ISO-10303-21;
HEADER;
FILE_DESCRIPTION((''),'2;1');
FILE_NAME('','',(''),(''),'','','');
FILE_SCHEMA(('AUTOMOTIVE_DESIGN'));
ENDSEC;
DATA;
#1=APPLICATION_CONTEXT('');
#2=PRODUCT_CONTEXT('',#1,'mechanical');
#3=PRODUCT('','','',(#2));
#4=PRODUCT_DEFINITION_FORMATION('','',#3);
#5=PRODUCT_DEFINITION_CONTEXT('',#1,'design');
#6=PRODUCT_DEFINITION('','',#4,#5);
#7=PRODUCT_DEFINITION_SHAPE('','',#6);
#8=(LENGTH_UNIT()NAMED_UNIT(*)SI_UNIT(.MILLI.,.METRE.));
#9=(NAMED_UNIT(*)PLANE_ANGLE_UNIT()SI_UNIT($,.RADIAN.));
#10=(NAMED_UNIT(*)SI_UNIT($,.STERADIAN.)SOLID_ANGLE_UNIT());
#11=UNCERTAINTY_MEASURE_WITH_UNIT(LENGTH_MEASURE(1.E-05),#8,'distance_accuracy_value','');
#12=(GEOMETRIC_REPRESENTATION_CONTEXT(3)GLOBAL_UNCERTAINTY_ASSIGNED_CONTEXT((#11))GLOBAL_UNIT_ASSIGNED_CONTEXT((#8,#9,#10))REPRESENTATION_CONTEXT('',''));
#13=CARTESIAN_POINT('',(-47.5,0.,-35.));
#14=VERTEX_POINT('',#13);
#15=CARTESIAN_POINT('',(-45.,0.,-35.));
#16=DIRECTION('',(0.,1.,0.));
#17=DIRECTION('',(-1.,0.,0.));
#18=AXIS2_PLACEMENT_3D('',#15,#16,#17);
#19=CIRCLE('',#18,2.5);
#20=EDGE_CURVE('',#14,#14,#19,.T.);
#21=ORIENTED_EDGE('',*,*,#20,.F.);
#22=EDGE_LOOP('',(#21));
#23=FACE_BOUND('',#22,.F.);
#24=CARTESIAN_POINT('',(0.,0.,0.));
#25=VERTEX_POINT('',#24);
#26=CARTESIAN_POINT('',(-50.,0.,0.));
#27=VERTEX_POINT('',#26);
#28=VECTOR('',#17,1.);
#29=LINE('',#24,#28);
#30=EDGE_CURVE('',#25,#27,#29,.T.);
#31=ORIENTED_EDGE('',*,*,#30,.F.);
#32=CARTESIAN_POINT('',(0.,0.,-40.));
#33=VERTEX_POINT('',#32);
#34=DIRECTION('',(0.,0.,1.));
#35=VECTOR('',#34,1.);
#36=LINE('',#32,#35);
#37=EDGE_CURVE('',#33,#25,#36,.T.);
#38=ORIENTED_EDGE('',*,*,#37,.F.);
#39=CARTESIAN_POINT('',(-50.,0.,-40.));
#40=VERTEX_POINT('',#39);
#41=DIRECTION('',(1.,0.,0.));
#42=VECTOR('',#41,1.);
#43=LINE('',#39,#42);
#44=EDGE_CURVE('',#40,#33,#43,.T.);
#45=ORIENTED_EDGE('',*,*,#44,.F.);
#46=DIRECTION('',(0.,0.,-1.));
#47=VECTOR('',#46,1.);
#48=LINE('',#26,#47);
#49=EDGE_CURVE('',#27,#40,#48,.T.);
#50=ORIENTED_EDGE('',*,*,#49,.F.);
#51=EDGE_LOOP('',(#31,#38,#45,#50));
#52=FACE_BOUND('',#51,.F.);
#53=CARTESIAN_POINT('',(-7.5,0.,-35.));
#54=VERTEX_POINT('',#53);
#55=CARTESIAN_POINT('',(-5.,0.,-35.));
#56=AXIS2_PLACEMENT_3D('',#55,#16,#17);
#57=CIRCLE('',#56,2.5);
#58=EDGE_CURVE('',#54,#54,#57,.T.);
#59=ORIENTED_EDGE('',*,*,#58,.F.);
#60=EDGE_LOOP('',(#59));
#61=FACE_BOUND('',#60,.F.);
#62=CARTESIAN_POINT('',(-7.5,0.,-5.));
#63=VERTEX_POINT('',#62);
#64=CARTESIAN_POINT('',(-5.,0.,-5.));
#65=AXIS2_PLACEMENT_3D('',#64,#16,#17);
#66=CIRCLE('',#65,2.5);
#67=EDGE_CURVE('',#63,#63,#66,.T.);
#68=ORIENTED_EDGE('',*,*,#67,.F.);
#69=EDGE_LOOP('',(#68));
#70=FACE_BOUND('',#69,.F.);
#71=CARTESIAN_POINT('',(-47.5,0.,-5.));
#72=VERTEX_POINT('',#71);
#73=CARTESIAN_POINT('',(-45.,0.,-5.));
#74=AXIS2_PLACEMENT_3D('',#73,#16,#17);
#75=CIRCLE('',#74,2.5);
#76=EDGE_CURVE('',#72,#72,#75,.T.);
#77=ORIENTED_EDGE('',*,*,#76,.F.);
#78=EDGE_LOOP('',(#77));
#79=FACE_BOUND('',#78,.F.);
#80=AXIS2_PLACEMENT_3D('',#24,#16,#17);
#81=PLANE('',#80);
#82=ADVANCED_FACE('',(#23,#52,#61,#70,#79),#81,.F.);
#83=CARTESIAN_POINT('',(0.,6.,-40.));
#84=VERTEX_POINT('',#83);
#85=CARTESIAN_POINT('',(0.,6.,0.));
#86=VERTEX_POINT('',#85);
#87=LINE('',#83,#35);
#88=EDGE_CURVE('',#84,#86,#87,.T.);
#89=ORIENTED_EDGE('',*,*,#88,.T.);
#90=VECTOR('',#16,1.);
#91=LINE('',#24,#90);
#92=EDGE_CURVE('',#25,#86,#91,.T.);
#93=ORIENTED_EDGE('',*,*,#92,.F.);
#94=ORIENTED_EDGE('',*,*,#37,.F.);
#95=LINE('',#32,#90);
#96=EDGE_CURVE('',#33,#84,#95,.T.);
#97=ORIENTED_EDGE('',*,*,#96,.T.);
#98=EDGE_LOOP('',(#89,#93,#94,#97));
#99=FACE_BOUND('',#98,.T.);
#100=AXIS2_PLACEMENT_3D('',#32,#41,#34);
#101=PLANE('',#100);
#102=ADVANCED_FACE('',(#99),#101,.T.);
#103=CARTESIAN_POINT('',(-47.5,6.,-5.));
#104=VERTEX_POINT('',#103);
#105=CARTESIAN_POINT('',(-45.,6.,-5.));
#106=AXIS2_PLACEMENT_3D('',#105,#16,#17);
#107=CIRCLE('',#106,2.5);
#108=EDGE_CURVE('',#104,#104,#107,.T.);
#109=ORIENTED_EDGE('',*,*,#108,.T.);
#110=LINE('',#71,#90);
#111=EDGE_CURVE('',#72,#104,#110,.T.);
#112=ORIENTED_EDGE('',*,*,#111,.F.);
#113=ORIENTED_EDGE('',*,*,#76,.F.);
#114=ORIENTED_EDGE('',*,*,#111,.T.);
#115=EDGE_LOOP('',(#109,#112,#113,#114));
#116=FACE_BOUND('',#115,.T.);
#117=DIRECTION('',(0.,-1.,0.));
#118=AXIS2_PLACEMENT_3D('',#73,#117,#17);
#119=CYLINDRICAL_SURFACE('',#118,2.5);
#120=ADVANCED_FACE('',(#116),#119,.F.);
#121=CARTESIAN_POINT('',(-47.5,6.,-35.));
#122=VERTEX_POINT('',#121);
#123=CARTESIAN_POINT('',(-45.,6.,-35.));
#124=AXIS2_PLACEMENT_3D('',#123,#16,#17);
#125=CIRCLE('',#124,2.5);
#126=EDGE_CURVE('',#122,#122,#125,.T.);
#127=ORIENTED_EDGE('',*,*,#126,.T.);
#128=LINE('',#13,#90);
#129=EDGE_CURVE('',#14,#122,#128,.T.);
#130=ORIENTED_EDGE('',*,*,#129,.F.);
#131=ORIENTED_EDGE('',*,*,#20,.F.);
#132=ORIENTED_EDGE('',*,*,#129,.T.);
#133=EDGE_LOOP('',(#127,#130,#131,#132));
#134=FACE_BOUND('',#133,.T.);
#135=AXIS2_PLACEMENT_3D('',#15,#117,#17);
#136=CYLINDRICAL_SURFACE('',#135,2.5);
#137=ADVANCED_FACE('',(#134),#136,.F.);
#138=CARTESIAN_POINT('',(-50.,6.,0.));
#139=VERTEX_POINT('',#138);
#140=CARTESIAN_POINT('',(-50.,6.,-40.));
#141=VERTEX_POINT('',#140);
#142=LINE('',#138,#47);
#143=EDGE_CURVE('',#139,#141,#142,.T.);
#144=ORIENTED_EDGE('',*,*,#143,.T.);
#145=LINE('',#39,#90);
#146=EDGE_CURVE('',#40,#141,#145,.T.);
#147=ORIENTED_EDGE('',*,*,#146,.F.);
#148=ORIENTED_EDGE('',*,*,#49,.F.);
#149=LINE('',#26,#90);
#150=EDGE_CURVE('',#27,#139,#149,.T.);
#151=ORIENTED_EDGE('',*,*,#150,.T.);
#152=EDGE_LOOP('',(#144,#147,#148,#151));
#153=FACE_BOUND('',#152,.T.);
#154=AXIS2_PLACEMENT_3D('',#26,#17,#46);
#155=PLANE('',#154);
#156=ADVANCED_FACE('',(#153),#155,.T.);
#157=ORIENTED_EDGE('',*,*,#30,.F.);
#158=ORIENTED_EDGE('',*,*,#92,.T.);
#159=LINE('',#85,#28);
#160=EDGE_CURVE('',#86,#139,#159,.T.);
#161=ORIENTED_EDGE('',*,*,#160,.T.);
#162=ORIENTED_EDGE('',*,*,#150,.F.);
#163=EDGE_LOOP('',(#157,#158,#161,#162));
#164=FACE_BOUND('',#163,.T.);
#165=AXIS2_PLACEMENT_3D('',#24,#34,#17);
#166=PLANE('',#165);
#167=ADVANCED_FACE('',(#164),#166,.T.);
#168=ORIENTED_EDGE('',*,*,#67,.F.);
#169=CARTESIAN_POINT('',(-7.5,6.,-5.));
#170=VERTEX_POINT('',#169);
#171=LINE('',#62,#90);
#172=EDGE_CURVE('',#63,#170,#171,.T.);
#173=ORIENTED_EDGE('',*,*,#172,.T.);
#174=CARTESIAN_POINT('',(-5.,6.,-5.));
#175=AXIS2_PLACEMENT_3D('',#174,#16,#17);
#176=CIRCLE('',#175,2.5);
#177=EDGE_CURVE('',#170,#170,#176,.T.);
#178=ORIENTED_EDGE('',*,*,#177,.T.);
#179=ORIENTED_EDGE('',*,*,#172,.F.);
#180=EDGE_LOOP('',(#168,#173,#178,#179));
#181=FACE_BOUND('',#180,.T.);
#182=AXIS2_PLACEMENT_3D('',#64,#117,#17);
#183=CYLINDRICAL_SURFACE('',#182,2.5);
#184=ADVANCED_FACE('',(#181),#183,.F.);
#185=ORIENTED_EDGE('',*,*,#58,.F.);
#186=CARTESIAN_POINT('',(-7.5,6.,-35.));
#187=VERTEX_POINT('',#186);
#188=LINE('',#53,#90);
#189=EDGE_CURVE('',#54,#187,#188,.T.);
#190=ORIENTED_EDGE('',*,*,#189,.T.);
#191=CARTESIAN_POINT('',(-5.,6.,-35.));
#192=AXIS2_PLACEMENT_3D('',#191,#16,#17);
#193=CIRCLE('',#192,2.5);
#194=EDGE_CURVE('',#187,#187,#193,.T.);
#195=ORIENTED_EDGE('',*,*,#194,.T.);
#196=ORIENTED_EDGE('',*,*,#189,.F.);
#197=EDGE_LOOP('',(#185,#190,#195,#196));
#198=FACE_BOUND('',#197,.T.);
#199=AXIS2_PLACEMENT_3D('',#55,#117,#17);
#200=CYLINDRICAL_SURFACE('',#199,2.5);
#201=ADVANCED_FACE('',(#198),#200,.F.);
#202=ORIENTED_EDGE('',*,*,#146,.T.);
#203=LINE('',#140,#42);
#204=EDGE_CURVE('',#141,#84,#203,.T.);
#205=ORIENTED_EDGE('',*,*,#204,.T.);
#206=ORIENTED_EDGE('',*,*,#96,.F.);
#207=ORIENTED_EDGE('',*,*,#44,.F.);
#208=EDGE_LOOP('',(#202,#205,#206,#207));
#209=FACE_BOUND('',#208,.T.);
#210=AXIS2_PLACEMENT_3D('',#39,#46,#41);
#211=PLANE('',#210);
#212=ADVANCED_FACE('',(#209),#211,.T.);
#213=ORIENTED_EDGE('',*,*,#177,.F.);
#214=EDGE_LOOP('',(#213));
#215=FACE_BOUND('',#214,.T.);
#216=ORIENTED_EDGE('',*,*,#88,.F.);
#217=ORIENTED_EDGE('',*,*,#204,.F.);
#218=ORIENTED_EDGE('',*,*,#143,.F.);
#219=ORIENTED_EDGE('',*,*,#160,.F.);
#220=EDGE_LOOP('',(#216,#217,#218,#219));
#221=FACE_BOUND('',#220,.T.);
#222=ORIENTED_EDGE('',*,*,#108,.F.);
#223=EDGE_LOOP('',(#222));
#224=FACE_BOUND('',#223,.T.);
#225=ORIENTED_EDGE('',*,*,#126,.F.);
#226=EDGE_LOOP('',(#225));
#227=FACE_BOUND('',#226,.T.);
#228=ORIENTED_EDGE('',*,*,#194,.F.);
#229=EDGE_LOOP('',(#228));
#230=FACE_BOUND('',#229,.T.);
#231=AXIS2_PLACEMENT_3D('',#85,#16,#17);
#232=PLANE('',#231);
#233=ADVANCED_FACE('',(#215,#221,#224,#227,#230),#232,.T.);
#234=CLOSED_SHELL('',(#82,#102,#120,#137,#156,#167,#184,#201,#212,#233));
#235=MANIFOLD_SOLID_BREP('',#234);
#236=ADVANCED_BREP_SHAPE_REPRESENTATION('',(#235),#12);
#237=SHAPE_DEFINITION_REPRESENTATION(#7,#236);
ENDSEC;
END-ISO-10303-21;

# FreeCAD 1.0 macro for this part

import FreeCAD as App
import Part
import Sketcher


def add_polygon(sketch, points):
    """Adds a closed chain of lines whose ends are joined by coincident constraints."""
    first, n = sketch.GeometryCount, len(points)
    for a, b in zip(points, points[1:] + points[:1]):
        sketch.addGeometry(Part.LineSegment(App.Vector(*a, 0), App.Vector(*b, 0)), False)
    for i in range(n):
        sketch.addConstraint(Sketcher.Constraint("Coincident", first + i, 2, first + (i + 1) % n, 1))

doc = App.newDocument("Part")
body = doc.addObject("PartDesign::Body", "Body")

# Sketch on XZ plane
sketch1 = body.newObject("Sketcher::SketchObject", "Sketch")
sketch1.AttachmentSupport = (doc.getObject("XZ_Plane"), [""])
sketch1.MapMode = "FlatFace"
add_polygon(sketch1, [(-50, 0), (0, 0), (0, -40), (-50, -40)])  # lines 0-3
sketch1.addGeometry(Part.Circle(App.Vector(-5, -35, 0), App.Vector(0, 0, 1), 2.5), False)  # 4
sketch1.addGeometry(Part.Circle(App.Vector(-45, -35, 0), App.Vector(0, 0, 1), 2.5), False)  # 5
sketch1.addGeometry(Part.Circle(App.Vector(-5, -5, 0), App.Vector(0, 0, 1), 2.5), False)  # 6
sketch1.addGeometry(Part.Circle(App.Vector(-45, -5, 0), App.Vector(0, 0, 1), 2.5), False)  # 7
sketch1.addConstraint([
    Sketcher.Constraint("Horizontal", 0),
    Sketcher.Constraint("Vertical", 1),
    Sketcher.Constraint("Horizontal", 2),
    Sketcher.Constraint("Vertical", 3),
    Sketcher.Constraint("Coincident", 0, 2, -1, 1),
    Sketcher.Constraint("Equal", 4, 5),
    Sketcher.Constraint("Equal", 5, 6),
    Sketcher.Constraint("Equal", 6, 7),
    Sketcher.Constraint("Horizontal", 4, 3, 5, 3),
    Sketcher.Constraint("Horizontal", 6, 3, 7, 3),
    Sketcher.Constraint("Vertical", 4, 3, 6, 3),
    Sketcher.Constraint("Vertical", 5, 3, 7, 3),
    Sketcher.Constraint("Diameter", 4, 5.0),
    Sketcher.Constraint("DistanceX", 0, 1, 0, 2, 50.0),
    Sketcher.Constraint("DistanceX", 4, 3, -1, 1, 5.0),
    Sketcher.Constraint("DistanceY", 6, 3, -1, 1, 5.0),
    Sketcher.Constraint("DistanceY", 1, 2, 4, 3, 5.0),
    Sketcher.Constraint("DistanceX", 2, 2, 5, 3, 5.0),
    Sketcher.Constraint("DistanceY", 1, 2, 1, 1, 40.0),
])
pad1 = body.newObject("PartDesign::Pad", "Pad")
pad1.Profile = sketch1
pad1.Length = 6
pad1.Reversed = True

doc.recompute()
